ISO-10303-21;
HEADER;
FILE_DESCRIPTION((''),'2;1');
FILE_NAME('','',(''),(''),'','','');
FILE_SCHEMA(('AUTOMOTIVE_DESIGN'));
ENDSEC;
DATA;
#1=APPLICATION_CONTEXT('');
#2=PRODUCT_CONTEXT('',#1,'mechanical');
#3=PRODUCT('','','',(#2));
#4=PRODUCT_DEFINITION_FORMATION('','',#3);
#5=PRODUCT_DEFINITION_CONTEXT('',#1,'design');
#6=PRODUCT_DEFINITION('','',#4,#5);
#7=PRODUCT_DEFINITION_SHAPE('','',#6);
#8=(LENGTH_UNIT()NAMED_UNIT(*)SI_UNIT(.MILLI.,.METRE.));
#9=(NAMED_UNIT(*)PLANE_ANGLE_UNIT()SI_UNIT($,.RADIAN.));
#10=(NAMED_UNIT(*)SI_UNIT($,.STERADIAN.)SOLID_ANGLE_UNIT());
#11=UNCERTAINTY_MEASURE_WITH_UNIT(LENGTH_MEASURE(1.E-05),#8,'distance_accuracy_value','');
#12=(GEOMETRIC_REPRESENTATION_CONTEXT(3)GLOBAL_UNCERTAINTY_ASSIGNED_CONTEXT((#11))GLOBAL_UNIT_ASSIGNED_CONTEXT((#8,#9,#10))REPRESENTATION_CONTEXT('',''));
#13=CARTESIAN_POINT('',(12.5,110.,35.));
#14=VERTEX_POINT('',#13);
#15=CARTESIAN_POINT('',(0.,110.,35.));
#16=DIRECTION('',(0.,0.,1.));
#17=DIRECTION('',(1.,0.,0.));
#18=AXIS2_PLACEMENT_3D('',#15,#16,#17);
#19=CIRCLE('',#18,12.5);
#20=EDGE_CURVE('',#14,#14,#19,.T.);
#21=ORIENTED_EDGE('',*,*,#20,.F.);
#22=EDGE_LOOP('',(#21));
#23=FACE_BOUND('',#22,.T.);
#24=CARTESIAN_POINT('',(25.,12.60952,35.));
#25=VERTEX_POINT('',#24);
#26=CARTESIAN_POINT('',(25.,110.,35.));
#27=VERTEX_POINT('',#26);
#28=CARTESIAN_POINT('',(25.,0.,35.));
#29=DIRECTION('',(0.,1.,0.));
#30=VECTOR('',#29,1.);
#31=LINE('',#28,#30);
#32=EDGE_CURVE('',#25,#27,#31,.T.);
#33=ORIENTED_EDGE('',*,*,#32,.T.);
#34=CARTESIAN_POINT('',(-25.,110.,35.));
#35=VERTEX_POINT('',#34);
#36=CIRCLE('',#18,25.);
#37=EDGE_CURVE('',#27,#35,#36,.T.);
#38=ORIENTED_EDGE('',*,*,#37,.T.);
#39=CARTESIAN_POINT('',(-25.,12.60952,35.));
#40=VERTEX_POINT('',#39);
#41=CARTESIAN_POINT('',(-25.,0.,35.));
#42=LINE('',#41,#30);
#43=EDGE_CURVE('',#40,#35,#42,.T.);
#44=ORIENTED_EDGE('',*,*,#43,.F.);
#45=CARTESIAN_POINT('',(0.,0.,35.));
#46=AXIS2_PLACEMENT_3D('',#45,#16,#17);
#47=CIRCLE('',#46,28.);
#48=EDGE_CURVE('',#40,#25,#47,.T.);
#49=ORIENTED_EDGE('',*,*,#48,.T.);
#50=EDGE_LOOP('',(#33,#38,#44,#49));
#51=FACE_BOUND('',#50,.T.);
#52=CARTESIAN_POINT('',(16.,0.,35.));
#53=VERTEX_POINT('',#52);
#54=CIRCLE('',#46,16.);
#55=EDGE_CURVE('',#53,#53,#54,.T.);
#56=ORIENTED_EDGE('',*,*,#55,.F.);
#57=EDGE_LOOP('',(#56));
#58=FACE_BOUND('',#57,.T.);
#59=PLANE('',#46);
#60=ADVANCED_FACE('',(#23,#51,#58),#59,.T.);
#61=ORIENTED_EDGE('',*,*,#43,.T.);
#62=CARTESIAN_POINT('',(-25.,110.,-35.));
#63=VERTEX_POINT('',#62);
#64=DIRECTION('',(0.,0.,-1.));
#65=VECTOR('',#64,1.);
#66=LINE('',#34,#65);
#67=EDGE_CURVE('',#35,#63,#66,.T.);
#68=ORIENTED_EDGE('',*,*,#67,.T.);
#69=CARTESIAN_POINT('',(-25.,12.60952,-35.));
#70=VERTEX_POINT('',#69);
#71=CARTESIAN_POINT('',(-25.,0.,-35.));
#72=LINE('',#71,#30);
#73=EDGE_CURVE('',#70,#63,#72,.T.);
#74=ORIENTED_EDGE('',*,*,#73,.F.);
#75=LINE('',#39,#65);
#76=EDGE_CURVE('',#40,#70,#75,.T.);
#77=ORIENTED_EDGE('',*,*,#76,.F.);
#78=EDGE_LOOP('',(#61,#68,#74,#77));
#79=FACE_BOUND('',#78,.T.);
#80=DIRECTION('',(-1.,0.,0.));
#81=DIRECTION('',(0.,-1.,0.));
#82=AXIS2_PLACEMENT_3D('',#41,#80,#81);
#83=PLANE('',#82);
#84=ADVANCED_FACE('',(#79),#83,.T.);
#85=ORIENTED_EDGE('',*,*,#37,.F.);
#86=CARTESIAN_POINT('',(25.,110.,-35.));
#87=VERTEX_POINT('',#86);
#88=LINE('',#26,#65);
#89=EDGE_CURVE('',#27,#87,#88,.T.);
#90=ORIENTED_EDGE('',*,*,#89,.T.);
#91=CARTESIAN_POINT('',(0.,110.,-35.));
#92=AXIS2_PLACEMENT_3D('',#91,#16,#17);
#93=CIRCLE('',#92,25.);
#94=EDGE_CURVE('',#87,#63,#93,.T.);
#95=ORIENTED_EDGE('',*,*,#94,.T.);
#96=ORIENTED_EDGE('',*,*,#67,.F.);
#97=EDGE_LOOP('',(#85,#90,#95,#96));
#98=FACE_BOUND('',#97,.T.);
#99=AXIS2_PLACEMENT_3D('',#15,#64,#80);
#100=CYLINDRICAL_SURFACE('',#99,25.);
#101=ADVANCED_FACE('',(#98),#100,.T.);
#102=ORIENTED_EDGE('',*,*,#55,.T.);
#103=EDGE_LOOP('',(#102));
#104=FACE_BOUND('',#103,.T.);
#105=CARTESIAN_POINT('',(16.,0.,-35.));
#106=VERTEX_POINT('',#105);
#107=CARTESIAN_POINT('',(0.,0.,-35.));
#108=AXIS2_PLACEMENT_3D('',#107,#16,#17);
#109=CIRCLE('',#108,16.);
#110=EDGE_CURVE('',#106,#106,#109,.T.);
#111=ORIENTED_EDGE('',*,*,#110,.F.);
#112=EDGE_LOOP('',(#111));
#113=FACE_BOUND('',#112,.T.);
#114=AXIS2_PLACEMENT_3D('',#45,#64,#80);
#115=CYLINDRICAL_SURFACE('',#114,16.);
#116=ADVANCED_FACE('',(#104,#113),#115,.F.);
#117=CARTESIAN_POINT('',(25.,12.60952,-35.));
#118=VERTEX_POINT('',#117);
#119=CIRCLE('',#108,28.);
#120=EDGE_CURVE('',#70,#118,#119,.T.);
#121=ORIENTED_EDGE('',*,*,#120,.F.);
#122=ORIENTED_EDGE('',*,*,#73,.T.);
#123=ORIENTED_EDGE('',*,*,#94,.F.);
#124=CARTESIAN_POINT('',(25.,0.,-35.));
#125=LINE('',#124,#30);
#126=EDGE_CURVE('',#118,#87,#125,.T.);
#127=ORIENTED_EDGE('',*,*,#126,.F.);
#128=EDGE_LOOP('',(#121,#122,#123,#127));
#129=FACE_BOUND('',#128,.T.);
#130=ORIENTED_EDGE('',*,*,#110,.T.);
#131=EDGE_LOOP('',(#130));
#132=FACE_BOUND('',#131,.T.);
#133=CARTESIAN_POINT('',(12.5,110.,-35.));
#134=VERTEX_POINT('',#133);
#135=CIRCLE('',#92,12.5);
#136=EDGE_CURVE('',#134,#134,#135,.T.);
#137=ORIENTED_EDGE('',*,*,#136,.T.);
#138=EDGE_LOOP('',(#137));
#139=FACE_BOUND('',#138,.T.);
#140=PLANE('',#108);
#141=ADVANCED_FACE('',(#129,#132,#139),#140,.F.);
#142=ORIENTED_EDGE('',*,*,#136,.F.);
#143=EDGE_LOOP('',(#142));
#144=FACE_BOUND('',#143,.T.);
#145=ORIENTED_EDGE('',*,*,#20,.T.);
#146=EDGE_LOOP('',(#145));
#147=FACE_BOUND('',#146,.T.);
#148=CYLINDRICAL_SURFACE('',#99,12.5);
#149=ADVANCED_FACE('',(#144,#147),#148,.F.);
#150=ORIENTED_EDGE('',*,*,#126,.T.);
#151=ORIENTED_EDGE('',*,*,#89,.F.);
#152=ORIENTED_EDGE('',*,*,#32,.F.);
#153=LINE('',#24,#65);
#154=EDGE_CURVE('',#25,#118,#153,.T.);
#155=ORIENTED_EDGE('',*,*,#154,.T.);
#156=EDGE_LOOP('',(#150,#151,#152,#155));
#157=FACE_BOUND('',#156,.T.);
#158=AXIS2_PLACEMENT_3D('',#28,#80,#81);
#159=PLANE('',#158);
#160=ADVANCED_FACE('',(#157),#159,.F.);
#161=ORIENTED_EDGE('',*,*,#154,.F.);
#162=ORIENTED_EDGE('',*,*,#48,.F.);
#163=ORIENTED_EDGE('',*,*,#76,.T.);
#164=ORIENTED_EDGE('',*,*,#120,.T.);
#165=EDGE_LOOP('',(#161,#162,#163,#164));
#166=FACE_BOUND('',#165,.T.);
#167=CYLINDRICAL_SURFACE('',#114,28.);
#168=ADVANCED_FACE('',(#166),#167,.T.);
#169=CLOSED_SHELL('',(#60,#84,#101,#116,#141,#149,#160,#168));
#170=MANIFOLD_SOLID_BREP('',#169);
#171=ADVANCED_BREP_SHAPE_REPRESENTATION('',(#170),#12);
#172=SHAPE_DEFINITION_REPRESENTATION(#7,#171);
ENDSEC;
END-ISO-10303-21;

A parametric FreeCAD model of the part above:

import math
import FreeCAD as App
import Part
import Sketcher

V = App.Vector
Q = App.Units.Quantity

doc = App.newDocument("Part")
body = doc.addObject("PartDesign::Body", "Body")

# Sketch on XY plane
sketch1 = body.newObject("Sketcher::SketchObject", "Sketch")
sketch1.AttachmentSupport = (doc.getObject("XY_Plane"), [""])
sketch1.MapMode = "FlatFace"
sketch1.addGeometry([
    Part.LineSegment(V(25, 13, 0), V(25, 110, 0)),  # 0
    Part.ArcOfCircle(Part.Circle(V(0, 110, 0), V(0, 0, 1), 25), math.radians(0), math.radians(180)),  # 1
    Part.LineSegment(V(-25, 110, 0), V(-25, 13, 0)),  # 2
    Part.ArcOfCircle(Part.Circle(V(0, 0, 0), V(0, 0, 1), 28), math.radians(153), math.radians(387)),  # 3
    Part.Circle(V(0, 0, 0), V(0, 0, 1), 16),  # 4
    Part.Circle(V(0, 110, 0), V(0, 0, 1), 12),  # 5
], False)
sketch1.addConstraint([
    Sketcher.Constraint("Tangent", 0, 2, 1, 1),
    Sketcher.Constraint("Tangent", 1, 2, 2, 1),
    Sketcher.Constraint("Coincident", 2, 2, 3, 1),
    Sketcher.Constraint("Coincident", 3, 2, 0, 1),
    Sketcher.Constraint("Vertical", 0),
    Sketcher.Constraint("Vertical", 2),
    Sketcher.Constraint("Coincident", 3, 3, -1, 1),
    Sketcher.Constraint("Coincident", 4, 3, -1, 1),
    Sketcher.Constraint("Coincident", 5, 3, 1, 3),
    Sketcher.Constraint("PointOnObject", 1, 3, -2),
    Sketcher.Constraint("Diameter", 4, Q("32 mm")),
    Sketcher.Constraint("Diameter", 5, Q("25 mm")),
    Sketcher.Constraint("Radius", 1, Q("25 mm")),
    Sketcher.Constraint("Radius", 3, Q("28 mm")),
    Sketcher.Constraint("DistanceY", -1, 1, 1, 3, Q("110 mm")),
])
pad1 = body.newObject("PartDesign::Pad", "Pad")
pad1.Profile = sketch1
pad1.Length = 70
pad1.Midplane = True

doc.recompute()
